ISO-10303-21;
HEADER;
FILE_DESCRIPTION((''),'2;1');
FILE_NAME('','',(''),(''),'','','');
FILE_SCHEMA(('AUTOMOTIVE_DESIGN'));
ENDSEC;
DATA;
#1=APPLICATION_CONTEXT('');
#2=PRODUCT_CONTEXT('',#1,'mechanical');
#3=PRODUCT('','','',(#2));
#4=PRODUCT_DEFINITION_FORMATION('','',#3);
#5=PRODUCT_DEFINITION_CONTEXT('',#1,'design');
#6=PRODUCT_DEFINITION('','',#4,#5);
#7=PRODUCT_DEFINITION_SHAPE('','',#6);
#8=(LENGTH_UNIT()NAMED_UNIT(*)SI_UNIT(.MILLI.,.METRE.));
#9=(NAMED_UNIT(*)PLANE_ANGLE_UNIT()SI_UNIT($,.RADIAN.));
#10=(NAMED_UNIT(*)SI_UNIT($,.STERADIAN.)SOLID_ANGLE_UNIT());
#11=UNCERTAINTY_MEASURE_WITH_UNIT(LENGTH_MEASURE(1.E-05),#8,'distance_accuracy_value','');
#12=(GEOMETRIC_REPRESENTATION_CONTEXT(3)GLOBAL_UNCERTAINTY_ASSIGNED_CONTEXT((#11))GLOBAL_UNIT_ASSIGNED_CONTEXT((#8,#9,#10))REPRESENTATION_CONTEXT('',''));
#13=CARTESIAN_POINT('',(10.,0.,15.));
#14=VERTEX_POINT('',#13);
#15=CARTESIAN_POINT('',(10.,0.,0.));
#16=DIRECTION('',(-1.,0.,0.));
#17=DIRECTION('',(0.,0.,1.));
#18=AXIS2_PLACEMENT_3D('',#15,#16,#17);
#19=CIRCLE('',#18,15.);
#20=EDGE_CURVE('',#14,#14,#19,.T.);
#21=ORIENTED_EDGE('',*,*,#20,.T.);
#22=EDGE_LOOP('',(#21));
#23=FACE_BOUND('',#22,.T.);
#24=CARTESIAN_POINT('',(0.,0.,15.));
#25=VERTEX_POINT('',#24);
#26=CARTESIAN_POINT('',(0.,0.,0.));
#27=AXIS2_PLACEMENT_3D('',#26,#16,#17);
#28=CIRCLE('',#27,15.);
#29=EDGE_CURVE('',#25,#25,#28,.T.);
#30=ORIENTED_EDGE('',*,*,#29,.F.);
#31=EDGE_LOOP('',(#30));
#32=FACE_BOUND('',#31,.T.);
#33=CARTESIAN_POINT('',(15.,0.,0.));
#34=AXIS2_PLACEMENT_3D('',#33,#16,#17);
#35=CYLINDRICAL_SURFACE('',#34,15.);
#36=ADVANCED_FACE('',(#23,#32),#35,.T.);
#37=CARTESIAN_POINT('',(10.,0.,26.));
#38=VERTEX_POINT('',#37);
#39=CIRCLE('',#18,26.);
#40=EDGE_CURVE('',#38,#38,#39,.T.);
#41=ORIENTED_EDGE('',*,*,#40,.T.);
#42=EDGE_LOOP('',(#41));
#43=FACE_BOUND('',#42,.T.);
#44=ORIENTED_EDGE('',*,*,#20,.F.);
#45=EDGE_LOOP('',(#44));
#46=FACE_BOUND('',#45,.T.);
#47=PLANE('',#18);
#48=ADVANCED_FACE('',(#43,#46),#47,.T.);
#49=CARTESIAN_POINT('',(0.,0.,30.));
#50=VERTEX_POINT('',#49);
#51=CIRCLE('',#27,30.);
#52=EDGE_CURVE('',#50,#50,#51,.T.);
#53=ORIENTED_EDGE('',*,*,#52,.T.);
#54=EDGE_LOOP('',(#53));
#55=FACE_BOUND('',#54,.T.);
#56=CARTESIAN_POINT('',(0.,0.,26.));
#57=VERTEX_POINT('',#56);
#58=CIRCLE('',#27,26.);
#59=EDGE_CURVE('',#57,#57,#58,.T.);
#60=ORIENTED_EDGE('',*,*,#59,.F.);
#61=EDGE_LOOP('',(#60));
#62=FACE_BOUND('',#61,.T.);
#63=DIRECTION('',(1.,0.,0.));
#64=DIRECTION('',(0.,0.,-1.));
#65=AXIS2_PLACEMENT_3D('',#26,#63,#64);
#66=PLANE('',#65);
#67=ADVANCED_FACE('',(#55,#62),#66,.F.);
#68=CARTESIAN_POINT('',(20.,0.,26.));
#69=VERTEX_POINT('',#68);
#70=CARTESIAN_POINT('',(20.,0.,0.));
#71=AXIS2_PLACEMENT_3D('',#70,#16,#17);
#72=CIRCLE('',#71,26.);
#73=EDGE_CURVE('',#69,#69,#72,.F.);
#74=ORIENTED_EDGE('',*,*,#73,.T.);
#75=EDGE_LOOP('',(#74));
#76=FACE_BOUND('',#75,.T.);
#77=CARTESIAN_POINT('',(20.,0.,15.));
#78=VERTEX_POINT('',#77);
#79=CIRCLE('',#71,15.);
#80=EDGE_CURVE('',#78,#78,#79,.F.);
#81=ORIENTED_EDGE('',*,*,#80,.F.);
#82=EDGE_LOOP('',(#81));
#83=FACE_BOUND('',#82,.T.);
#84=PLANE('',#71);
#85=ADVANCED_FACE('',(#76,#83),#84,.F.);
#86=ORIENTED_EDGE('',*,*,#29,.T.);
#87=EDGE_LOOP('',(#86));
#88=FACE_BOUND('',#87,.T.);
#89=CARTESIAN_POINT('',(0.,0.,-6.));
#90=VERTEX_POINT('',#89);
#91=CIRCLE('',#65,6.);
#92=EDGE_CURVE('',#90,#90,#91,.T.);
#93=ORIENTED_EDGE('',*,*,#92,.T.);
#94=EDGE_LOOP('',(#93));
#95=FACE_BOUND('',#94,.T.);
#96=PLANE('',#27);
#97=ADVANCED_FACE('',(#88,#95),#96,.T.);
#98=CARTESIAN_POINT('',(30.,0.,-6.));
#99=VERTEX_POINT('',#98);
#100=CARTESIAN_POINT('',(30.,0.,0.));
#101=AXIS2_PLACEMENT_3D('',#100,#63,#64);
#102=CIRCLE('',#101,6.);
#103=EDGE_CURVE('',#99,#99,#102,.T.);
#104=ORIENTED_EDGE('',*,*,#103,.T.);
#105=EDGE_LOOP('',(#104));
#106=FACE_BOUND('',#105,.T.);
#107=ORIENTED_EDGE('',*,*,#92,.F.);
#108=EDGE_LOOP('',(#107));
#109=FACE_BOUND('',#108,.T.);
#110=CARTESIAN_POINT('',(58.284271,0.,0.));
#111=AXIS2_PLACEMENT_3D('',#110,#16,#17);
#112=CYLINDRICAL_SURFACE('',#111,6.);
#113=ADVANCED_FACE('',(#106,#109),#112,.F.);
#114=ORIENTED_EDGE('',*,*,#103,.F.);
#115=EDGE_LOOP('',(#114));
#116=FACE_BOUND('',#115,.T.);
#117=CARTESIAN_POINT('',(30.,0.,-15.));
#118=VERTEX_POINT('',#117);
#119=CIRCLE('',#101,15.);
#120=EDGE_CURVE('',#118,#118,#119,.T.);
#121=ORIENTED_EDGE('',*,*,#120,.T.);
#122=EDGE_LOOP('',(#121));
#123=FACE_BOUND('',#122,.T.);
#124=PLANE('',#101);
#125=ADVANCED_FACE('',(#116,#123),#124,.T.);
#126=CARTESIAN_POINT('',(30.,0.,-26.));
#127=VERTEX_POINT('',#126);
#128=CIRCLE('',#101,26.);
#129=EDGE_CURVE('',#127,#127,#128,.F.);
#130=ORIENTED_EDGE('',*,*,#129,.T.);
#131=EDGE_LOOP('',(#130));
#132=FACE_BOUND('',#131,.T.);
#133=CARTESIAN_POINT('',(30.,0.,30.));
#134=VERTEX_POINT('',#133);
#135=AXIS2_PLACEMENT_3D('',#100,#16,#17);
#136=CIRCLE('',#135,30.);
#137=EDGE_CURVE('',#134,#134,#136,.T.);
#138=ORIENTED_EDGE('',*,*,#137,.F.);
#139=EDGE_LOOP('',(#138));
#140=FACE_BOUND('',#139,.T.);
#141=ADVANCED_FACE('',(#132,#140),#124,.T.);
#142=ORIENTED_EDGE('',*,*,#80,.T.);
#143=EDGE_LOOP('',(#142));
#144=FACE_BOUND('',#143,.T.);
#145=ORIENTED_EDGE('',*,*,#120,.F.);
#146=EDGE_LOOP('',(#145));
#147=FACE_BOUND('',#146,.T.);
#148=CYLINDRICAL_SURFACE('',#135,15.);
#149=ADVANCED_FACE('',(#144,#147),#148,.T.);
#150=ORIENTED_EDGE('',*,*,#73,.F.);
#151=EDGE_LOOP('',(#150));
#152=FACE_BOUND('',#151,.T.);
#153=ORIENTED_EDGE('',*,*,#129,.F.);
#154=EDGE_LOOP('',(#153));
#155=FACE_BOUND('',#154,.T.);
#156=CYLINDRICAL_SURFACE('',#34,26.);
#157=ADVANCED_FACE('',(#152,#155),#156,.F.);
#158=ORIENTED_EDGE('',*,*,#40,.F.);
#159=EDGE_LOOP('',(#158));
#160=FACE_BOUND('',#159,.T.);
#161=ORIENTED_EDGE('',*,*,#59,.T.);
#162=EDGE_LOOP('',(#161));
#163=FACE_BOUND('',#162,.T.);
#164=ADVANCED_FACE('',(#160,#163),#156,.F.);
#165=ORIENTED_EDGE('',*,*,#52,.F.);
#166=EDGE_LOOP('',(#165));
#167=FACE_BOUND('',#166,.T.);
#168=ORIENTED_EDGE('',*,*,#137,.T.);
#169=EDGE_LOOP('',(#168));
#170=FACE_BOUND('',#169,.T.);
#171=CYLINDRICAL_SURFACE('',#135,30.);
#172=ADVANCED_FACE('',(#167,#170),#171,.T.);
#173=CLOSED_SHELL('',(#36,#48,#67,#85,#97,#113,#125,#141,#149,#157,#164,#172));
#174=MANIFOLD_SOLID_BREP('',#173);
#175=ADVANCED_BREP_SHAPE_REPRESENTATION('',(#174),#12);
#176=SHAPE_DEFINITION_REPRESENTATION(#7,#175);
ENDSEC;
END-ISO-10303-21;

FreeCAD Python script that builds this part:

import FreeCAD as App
import Part
import Sketcher
from FreeCAD import Vector
Q = App.Units.Quantity

doc = App.newDocument("Part")
body = doc.addObject("PartDesign::Body", "Body")
body.AllowCompound = True

# Sketch on YZ plane
sketch1 = body.newObject("Sketcher::SketchObject", "Sketch")
sketch1.AttachmentSupport = (doc.getObject("YZ_Plane"), [""])
sketch1.MapMode = "FlatFace"
sketch1.addGeometry(Part.Circle(Vector(0, 0, 0), Vector(0, 0, 1), 15), False)
sketch1.addConstraint(Sketcher.Constraint("Coincident", 0, 3, -1, 1))
sketch1.addConstraint(Sketcher.Constraint("Diameter", 0, Q("30 mm")))
pad1 = body.newObject("PartDesign::Pad", "Pad")
pad1.Profile = sketch1
pad1.Length = 30

# Sketch on YZ plane
sketch2 = body.newObject("Sketcher::SketchObject", "Sketch001")
sketch2.AttachmentSupport = (doc.getObject("YZ_Plane"), [""])
sketch2.MapMode = "FlatFace"
sketch2.addGeometry(Part.Circle(Vector(0, 0, 0), Vector(0, 0, 1), 10), False)
sketch2.addConstraint(Sketcher.Constraint("Coincident", 0, 3, -1, 1))
sketch2.addConstraint(Sketcher.Constraint("Diameter", 0, Q("20 mm")))
pocket1 = body.newObject("PartDesign::Pocket", "Pocket")
pocket1.Profile = sketch2
pocket1.Length = 30
pocket1.Reversed = True

# Sketch on YZ plane
sketch3 = body.newObject("Sketcher::SketchObject", "Sketch002")
sketch3.AttachmentSupport = (doc.getObject("YZ_Plane"), [""])
sketch3.MapMode = "FlatFace"
sketch3.addGeometry(Part.Circle(Vector(0, 0, 0), Vector(0, 0, 1), 30), False)
sketch3.addConstraint(Sketcher.Constraint("Coincident", 0, 3, -1, 1))
sketch3.addConstraint(Sketcher.Constraint("Diameter", 0, Q("60 mm")))
pad2 = body.newObject("PartDesign::Pad", "Pad001")
pad2.Profile = sketch3
pad2.Length = 30

# Sketch on YZ plane
sketch4 = body.newObject("Sketcher::SketchObject", "Sketch003")
sketch4.AttachmentSupport = (doc.getObject("YZ_Plane"), [""])
sketch4.MapMode = "FlatFace"
sketch4.addGeometry(Part.Circle(Vector(0, 0, 0), Vector(0, 0, 1), 26), False)
sketch4.addConstraint(Sketcher.Constraint("Coincident", 0, 3, -1, 1))
sketch4.addConstraint(Sketcher.Constraint("Diameter", 0, Q("52 mm")))
pocket2 = body.newObject("PartDesign::Pocket", "Pocket001")
pocket2.Profile = sketch4
pocket2.Length = 15
pocket2.Reversed = True

# Sketch on YZ plane
sketch5 = body.newObject("Sketcher::SketchObject", "Sketch004")
sketch5.AttachmentSupport = (doc.getObject("YZ_Plane"), [""])
sketch5.MapMode = "FlatFace"
sketch5.addGeometry(Part.Circle(Vector(0, 0, 0), Vector(0, 0, 1), 15), False)
sketch5.addConstraint(Sketcher.Constraint("Coincident", 0, 3, -1, 1))
sketch5.addConstraint(Sketcher.Constraint("Diameter", 0, Q("30 mm")))
pad3 = body.newObject("PartDesign::Pad", "Pad002")
pad3.Profile = sketch5
pad3.Type = "TwoLengths"
pad3.Length = 15
pad3.Length2 = 15
pad3.Reversed = True

# Sketch on YZ plane
sketch6 = body.newObject("Sketcher::SketchObject", "Sketch005")
sketch6.AttachmentSupport = (doc.getObject("YZ_Plane"), [""])
sketch6.MapMode = "FlatFace"
sketch6.AttachmentOffset = App.Placement(Vector(0, 0, -15), App.Rotation())
sketch6.addGeometry(Part.Circle(Vector(0, 0, 0), Vector(0, 0, 1), 10), False)
sketch6.addConstraint(Sketcher.Constraint("Coincident", 0, 3, -1, 1))
sketch6.addConstraint(Sketcher.Constraint("Diameter", 0, Q("20 mm")))
pocket3 = body.newObject("PartDesign::Pocket", "Pocket002")
pocket3.Profile = sketch6
pocket3.Length = 45
pocket3.Reversed = True

# Sketch on YZ plane
sketch7 = body.newObject("Sketcher::SketchObject", "Sketch006")
sketch7.AttachmentSupport = (doc.getObject("YZ_Plane"), [""])
sketch7.MapMode = "FlatFace"
sketch7.AttachmentOffset = App.Placement(Vector(0, 0, 30), App.Rotation())
sketch7.addGeometry(Part.Circle(Vector(0, 0, 0), Vector(0, 0, 1), 26), False)
sketch7.addConstraint(Sketcher.Constraint("Coincident", 0, 3, -1, 1))
sketch7.addConstraint(Sketcher.Constraint("Diameter", 0, Q("52 mm")))
pocket4 = body.newObject("PartDesign::Pocket", "Pocket003")
pocket4.Profile = sketch7
pocket4.Type = "TwoLengths"
pocket4.Length = 1
pocket4.Length2 = 15
pocket4.Reversed = True

# Sketch on YZ plane
sketch8 = body.newObject("Sketcher::SketchObject", "Sketch007")
sketch8.AttachmentSupport = (doc.getObject("YZ_Plane"), [""])
sketch8.MapMode = "FlatFace"
sketch8.AttachmentOffset = App.Placement(Vector(0, 0, 15), App.Rotation())
sketch8.addGeometry(Part.Circle(Vector(0, 0, 0), Vector(0, 0, 1), 26), False)
sketch8.addConstraint(Sketcher.Constraint("Coincident", 0, 3, -1, 1))
sketch8.addConstraint(Sketcher.Constraint("Diameter", 0, Q("52 mm")))
pad4 = body.newObject("PartDesign::Pad", "Pad003")
pad4.Profile = sketch8
pad4.Type = "TwoLengths"
pad4.Length = 5
pad4.Length2 = 5
pad4.Reversed = True

# Sketch on YZ plane
sketch9 = body.newObject("Sketcher::SketchObject", "Sketch008")
sketch9.AttachmentSupport = (doc.getObject("YZ_Plane"), [""])
sketch9.MapMode = "FlatFace"
sketch9.AttachmentOffset = App.Placement(Vector(0, 0, 20), App.Rotation())
sketch9.addGeometry(Part.Circle(Vector(0, 0, 0), Vector(0, 0, 1), 15), False)
sketch9.addConstraint(Sketcher.Constraint("Coincident", 0, 3, -1, 1))
sketch9.addConstraint(Sketcher.Constraint("Diameter", 0, Q("30 mm")))
pad5 = body.newObject("PartDesign::Pad", "Pad004")
pad5.Profile = sketch9
pad5.Length = 10

# Sketch on YZ plane
sketch10 = body.newObject("Sketcher::SketchObject", "Sketch009")
sketch10.AttachmentSupport = (doc.getObject("YZ_Plane"), [""])
sketch10.MapMode = "FlatFace"
sketch10.AttachmentOffset = App.Placement(Vector(0, 0, -15), App.Rotation())
sketch10.addGeometry(Part.Circle(Vector(0, 0, 0), Vector(0, 0, 1), 10), False)
sketch10.addConstraint(Sketcher.Constraint("Coincident", 0, 3, -1, 1))
sketch10.addConstraint(Sketcher.Constraint("Diameter", 0, Q("20 mm")))
pocket5 = body.newObject("PartDesign::Pocket", "Pocket004")
pocket5.Profile = sketch10
pocket5.Length = 55
pocket5.Reversed = True

# Sketch on YZ plane
sketch11 = body.newObject("Sketcher::SketchObject", "Sketch010")
sketch11.AttachmentSupport = (doc.getObject("YZ_Plane"), [""])
sketch11.MapMode = "FlatFace"
sketch11.AttachmentOffset = App.Placement(Vector(0, 0, -15), App.Rotation())
sketch11.addGeometry(Part.Circle(Vector(0, 0, 0), Vector(0, 0, 1), 15), False)
sketch11.addConstraint(Sketcher.Constraint("Coincident", 0, 3, -1, 1))
sketch11.addConstraint(Sketcher.Constraint("Diameter", 0, Q("30 mm")))
pocket6 = body.newObject("PartDesign::Pocket", "Pocket005")
pocket6.Profile = sketch11
pocket6.Length = 15
pocket6.Reversed = True

# Sketch on YZ plane
sketch12 = body.newObject("Sketcher::SketchObject", "Sketch011")
sketch12.AttachmentSupport = (doc.getObject("YZ_Plane"), [""])
sketch12.MapMode = "FlatFace"
sketch12.addGeometry(Part.Circle(Vector(0, 0, 0), Vector(0, 0, 1), 10), False)
sketch12.addGeometry(Part.Circle(Vector(0, 0, 0), Vector(0, 0, 1), 6), False)
sketch12.addConstraint(Sketcher.Constraint("Coincident", 0, 3, -1, 1))
sketch12.addConstraint(Sketcher.Constraint("Coincident", 1, 3, -1, 1))
sketch12.addConstraint(Sketcher.Constraint("Diameter", 0, Q("20 mm")))
sketch12.addConstraint(Sketcher.Constraint("Diameter", 1, Q("12 mm")))
pad6 = body.newObject("PartDesign::Pad", "Pad005")
pad6.Profile = sketch12
pad6.Length = 30

doc.recompute()
